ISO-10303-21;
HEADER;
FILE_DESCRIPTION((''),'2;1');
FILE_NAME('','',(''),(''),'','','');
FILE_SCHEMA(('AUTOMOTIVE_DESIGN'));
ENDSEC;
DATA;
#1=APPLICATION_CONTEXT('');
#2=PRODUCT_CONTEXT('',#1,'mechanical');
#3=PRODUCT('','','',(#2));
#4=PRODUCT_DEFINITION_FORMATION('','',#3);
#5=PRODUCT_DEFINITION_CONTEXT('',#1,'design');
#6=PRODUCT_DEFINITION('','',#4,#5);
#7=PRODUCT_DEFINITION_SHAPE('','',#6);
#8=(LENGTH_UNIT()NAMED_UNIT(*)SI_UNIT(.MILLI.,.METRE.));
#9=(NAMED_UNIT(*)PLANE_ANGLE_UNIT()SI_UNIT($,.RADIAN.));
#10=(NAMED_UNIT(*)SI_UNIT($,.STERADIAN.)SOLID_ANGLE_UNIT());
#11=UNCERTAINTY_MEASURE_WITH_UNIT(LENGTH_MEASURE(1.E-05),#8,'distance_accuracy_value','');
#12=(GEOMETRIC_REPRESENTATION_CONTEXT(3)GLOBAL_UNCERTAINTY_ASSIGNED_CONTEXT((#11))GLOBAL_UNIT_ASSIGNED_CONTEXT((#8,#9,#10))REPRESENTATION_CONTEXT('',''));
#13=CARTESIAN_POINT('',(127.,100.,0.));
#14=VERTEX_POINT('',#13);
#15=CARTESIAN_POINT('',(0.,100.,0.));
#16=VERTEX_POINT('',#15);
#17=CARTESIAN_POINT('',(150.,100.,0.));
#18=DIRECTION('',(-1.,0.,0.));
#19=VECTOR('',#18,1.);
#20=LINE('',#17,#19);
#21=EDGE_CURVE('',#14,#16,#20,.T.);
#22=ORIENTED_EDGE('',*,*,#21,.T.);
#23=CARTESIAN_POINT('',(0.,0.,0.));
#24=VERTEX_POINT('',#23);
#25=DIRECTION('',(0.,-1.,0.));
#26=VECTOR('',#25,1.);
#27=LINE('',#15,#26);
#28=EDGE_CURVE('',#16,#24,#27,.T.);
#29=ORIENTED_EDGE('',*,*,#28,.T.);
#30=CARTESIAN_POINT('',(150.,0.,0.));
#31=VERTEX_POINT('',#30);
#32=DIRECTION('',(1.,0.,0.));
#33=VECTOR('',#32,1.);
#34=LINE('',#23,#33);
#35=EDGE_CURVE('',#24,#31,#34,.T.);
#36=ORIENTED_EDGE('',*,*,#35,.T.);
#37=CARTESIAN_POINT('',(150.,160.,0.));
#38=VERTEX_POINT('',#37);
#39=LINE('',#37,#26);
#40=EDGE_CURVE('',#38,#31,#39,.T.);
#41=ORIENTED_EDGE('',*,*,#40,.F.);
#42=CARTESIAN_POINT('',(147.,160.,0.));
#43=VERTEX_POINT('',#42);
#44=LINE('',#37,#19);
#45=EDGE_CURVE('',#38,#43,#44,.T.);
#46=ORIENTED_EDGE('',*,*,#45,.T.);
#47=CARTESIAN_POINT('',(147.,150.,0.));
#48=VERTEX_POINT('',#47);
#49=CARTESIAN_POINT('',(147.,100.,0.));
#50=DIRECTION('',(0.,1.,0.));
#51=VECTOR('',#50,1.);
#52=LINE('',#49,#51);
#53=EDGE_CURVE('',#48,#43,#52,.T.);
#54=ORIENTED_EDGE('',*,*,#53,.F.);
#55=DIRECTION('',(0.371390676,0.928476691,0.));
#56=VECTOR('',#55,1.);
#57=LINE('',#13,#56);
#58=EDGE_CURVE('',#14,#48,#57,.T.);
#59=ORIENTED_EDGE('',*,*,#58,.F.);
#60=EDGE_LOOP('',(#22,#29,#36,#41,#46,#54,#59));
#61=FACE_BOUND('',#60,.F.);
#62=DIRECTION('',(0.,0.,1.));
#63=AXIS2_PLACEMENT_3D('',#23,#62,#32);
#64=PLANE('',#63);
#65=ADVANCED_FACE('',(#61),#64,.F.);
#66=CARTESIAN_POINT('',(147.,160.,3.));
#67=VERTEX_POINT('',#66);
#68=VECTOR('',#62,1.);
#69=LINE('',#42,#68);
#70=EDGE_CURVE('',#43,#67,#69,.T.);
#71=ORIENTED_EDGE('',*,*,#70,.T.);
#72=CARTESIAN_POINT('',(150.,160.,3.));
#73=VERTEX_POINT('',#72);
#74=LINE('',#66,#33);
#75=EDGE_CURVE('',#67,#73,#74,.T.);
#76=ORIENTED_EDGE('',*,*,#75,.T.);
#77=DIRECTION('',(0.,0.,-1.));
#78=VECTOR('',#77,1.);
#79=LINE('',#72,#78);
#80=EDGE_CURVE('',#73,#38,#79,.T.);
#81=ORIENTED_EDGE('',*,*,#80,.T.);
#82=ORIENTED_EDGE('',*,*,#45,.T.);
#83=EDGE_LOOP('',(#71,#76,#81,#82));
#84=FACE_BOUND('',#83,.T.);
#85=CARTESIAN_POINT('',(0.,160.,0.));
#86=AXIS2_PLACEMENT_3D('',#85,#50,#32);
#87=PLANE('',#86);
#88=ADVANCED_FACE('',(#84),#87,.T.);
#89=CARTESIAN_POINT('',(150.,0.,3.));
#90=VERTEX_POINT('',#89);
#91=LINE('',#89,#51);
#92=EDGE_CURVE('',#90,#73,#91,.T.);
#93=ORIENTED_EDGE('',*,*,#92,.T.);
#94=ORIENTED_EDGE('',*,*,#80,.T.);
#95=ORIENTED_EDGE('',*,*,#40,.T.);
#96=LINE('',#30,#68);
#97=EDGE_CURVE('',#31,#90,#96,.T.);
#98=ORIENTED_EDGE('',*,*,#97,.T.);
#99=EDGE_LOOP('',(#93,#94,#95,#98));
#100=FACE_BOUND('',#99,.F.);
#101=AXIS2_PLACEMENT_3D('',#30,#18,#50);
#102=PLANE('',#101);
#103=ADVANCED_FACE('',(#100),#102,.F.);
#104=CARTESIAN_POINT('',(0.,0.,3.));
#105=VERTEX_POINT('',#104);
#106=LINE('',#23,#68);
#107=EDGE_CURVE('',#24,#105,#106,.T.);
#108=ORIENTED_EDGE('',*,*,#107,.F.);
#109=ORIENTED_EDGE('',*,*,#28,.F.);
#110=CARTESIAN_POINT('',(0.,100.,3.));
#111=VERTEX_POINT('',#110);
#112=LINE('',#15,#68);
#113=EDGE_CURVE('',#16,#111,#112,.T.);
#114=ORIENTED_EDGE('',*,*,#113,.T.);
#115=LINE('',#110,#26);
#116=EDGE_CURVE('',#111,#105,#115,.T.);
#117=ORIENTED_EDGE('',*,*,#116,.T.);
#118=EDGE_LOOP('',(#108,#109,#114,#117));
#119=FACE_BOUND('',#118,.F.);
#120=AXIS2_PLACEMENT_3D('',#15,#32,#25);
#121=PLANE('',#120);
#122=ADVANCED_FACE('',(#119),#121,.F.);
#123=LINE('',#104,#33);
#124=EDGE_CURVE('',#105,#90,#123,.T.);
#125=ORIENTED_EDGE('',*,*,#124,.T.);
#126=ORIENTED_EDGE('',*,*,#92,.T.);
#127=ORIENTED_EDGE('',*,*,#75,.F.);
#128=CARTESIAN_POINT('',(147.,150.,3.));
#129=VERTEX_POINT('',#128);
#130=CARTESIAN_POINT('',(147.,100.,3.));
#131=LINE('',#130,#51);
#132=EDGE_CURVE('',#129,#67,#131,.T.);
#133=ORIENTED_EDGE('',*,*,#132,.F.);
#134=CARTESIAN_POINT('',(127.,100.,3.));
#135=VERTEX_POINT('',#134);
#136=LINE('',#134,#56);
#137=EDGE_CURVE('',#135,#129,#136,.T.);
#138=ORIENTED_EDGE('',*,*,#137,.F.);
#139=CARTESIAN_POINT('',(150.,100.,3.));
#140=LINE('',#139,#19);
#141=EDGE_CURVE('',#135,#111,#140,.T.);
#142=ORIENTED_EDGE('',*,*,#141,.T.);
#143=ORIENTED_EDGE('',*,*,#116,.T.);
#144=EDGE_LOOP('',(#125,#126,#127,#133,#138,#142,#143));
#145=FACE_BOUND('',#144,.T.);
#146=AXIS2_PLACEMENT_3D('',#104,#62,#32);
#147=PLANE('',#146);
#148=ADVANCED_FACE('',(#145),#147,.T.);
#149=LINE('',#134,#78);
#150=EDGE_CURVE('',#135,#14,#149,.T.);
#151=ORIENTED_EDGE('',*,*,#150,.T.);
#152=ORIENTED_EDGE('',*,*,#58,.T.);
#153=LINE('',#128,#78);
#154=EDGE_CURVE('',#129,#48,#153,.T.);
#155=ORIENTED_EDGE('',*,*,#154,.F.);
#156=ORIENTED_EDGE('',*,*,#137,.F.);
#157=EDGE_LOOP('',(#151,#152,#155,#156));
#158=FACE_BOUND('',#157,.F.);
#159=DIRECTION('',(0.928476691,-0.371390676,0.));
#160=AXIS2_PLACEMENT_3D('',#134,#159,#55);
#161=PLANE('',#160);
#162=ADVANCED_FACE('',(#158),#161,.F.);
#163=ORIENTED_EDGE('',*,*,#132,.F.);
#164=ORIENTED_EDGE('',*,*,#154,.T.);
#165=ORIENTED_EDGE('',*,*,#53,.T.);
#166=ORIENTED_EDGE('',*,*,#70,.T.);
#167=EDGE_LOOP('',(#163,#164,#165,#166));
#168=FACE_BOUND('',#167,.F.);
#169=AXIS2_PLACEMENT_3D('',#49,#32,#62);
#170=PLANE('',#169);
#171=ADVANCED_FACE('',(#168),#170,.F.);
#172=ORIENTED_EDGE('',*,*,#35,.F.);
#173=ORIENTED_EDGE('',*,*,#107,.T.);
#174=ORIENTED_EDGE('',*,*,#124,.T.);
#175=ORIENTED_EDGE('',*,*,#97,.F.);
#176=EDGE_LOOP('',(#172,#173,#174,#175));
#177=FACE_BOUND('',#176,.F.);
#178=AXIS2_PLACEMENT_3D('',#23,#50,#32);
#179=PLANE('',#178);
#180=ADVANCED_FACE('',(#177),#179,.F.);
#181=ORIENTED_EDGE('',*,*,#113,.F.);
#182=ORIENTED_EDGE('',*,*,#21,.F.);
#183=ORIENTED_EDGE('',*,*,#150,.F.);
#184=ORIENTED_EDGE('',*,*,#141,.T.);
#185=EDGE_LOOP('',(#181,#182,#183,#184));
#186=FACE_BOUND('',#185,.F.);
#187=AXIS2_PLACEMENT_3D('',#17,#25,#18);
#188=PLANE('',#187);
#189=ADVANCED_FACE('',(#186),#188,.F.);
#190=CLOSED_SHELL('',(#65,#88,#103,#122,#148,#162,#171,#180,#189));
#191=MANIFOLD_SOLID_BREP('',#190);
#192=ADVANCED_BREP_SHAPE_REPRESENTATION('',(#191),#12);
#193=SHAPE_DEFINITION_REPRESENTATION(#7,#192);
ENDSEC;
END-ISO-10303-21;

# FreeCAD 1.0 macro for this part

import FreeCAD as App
import Part
import Sketcher

V = App.Vector
Q = App.Units.Quantity

doc = App.newDocument("Part")
body = doc.addObject("PartDesign::Body", "Body")

# Sketch on XY plane
sketch1 = doc.addObject("Sketcher::SketchObject", "Sketch")
body.addObject(sketch1)
sketch1.AttachmentSupport = (doc.XY_Plane, [""])
sketch1.MapMode = "FlatFace"
sketch1.addGeometry(Part.LineSegment(V(0, 100, 0), V(0, 0, 0)), False)
sketch1.addGeometry(Part.LineSegment(V(0, 0, 0), V(150, 0, 0)), False)
sketch1.addGeometry(Part.LineSegment(V(150, 0, 0), V(150, 100, 0)), False)
sketch1.addGeometry(Part.LineSegment(V(150, 100, 0), V(0, 100, 0)), False)
sketch1.addConstraint(Sketcher.Constraint("Coincident", 0, 2, 1, 1))
sketch1.addConstraint(Sketcher.Constraint("Coincident", 1, 2, 2, 1))
sketch1.addConstraint(Sketcher.Constraint("Coincident", 2, 2, 3, 1))
sketch1.addConstraint(Sketcher.Constraint("Coincident", 3, 2, 0, 1))
sketch1.addConstraint(Sketcher.Constraint("Vertical", 0))
sketch1.addConstraint(Sketcher.Constraint("Horizontal", 1))
sketch1.addConstraint(Sketcher.Constraint("Vertical", 2))
sketch1.addConstraint(Sketcher.Constraint("Horizontal", 3))
sketch1.addConstraint(Sketcher.Constraint("Coincident", 0, 2, -1, 1))
sketch1.addConstraint(Sketcher.Constraint("DistanceY", 0, 2, 0, 1, Q("3.937 in")))
sketch1.addConstraint(Sketcher.Constraint("DistanceX", 1, 1, 1, 2, Q("5.9055 in")))
pad1 = doc.addObject("PartDesign::Pad", "Pad")
body.addObject(pad1)
pad1.Profile = sketch1
pad1.Length = Q("0.1181102 in")

# Sketch on XZ plane
sketch2 = doc.addObject("Sketcher::SketchObject", "Sketch001")
body.addObject(sketch2)
sketch2.AttachmentSupport = (doc.XZ_Plane, [""])
sketch2.MapMode = "FlatFace"
sketch2.AttachmentOffset = App.Placement(V(0, 0, -3.9370079 * 25.4), App.Rotation())
sketch2.addGeometry(Part.LineSegment(V(150, 3, 0), V(150, 0, 0)), False)
sketch2.addGeometry(Part.LineSegment(V(150, 0, 0), V(147, 0, 0)), False)
sketch2.addGeometry(Part.LineSegment(V(147, 0, 0), V(147, 3, 0)), False)
sketch2.addGeometry(Part.LineSegment(V(147, 3, 0), V(150, 3, 0)), False)
sketch2.addConstraint(Sketcher.Constraint("Coincident", 0, 2, 1, 1))
sketch2.addConstraint(Sketcher.Constraint("Coincident", 1, 2, 2, 1))
sketch2.addConstraint(Sketcher.Constraint("Coincident", 2, 2, 3, 1))
sketch2.addConstraint(Sketcher.Constraint("Coincident", 3, 2, 0, 1))
sketch2.addConstraint(Sketcher.Constraint("Vertical", 0))
sketch2.addConstraint(Sketcher.Constraint("Horizontal", 1))
sketch2.addConstraint(Sketcher.Constraint("Vertical", 2))
sketch2.addConstraint(Sketcher.Constraint("Horizontal", 3))
sketch2.addConstraint(Sketcher.Constraint("PointOnObject", 0, 2, -1))
sketch2.addConstraint(Sketcher.Constraint("Equal", 3, 0))
sketch2.addConstraint(Sketcher.Constraint("DistanceX", 1, 2, 1, 1, Q("0.1181 in")))
sketch2.addConstraint(Sketcher.Constraint("DistanceX", -1, 1, 0, 2, Q("5.9055 in")))
pad2 = doc.addObject("PartDesign::Pad", "Pad001")
body.addObject(pad2)
pad2.Profile = sketch2
pad2.Length = Q("2.3622047 in")
pad2.Reversed = True

# Sketch on XY plane
sketch3 = doc.addObject("Sketcher::SketchObject", "Sketch002")
body.addObject(sketch3)
sketch3.AttachmentSupport = (doc.XY_Plane, [""])
sketch3.MapMode = "FlatFace"
sketch3.AttachmentOffset = App.Placement(V(0, 0, 0.1181102 * 25.4), App.Rotation())
sketch3.addGeometry(Part.LineSegment(V(127, 100, 0), V(147, 100, 0)), False)
sketch3.addGeometry(Part.LineSegment(V(147, 100, 0), V(147, 150, 0)), False)
sketch3.addGeometry(Part.LineSegment(V(147, 150, 0), V(127, 100, 0)), False)
sketch3.addConstraint(Sketcher.Constraint("Coincident", 0, 2, 1, 1))
sketch3.addConstraint(Sketcher.Constraint("Coincident", 1, 2, 2, 1))
sketch3.addConstraint(Sketcher.Constraint("Coincident", 2, 2, 0, 1))
sketch3.addConstraint(Sketcher.Constraint("Horizontal", 0))
sketch3.addConstraint(Sketcher.Constraint("Vertical", 1))
sketch3.addConstraint(Sketcher.Constraint("DistanceX", 0, 1, 0, 2, Q("0.7874 in")))
sketch3.addConstraint(Sketcher.Constraint("DistanceX", -1, 1, 2, 2, Q("5 in")))
sketch3.addConstraint(Sketcher.Constraint("DistanceY", 1, 1, 1, 2, Q("1.9685 in")))
sketch3.addConstraint(Sketcher.Constraint("DistanceY", -1, 1, 0, 2, Q("3.937 in")))
pad3 = doc.addObject("PartDesign::Pad", "Pad002")
body.addObject(pad3)
pad3.Profile = sketch3
pad3.Length = Q("0.1181102 in")
pad3.Reversed = True

doc.recompute()
